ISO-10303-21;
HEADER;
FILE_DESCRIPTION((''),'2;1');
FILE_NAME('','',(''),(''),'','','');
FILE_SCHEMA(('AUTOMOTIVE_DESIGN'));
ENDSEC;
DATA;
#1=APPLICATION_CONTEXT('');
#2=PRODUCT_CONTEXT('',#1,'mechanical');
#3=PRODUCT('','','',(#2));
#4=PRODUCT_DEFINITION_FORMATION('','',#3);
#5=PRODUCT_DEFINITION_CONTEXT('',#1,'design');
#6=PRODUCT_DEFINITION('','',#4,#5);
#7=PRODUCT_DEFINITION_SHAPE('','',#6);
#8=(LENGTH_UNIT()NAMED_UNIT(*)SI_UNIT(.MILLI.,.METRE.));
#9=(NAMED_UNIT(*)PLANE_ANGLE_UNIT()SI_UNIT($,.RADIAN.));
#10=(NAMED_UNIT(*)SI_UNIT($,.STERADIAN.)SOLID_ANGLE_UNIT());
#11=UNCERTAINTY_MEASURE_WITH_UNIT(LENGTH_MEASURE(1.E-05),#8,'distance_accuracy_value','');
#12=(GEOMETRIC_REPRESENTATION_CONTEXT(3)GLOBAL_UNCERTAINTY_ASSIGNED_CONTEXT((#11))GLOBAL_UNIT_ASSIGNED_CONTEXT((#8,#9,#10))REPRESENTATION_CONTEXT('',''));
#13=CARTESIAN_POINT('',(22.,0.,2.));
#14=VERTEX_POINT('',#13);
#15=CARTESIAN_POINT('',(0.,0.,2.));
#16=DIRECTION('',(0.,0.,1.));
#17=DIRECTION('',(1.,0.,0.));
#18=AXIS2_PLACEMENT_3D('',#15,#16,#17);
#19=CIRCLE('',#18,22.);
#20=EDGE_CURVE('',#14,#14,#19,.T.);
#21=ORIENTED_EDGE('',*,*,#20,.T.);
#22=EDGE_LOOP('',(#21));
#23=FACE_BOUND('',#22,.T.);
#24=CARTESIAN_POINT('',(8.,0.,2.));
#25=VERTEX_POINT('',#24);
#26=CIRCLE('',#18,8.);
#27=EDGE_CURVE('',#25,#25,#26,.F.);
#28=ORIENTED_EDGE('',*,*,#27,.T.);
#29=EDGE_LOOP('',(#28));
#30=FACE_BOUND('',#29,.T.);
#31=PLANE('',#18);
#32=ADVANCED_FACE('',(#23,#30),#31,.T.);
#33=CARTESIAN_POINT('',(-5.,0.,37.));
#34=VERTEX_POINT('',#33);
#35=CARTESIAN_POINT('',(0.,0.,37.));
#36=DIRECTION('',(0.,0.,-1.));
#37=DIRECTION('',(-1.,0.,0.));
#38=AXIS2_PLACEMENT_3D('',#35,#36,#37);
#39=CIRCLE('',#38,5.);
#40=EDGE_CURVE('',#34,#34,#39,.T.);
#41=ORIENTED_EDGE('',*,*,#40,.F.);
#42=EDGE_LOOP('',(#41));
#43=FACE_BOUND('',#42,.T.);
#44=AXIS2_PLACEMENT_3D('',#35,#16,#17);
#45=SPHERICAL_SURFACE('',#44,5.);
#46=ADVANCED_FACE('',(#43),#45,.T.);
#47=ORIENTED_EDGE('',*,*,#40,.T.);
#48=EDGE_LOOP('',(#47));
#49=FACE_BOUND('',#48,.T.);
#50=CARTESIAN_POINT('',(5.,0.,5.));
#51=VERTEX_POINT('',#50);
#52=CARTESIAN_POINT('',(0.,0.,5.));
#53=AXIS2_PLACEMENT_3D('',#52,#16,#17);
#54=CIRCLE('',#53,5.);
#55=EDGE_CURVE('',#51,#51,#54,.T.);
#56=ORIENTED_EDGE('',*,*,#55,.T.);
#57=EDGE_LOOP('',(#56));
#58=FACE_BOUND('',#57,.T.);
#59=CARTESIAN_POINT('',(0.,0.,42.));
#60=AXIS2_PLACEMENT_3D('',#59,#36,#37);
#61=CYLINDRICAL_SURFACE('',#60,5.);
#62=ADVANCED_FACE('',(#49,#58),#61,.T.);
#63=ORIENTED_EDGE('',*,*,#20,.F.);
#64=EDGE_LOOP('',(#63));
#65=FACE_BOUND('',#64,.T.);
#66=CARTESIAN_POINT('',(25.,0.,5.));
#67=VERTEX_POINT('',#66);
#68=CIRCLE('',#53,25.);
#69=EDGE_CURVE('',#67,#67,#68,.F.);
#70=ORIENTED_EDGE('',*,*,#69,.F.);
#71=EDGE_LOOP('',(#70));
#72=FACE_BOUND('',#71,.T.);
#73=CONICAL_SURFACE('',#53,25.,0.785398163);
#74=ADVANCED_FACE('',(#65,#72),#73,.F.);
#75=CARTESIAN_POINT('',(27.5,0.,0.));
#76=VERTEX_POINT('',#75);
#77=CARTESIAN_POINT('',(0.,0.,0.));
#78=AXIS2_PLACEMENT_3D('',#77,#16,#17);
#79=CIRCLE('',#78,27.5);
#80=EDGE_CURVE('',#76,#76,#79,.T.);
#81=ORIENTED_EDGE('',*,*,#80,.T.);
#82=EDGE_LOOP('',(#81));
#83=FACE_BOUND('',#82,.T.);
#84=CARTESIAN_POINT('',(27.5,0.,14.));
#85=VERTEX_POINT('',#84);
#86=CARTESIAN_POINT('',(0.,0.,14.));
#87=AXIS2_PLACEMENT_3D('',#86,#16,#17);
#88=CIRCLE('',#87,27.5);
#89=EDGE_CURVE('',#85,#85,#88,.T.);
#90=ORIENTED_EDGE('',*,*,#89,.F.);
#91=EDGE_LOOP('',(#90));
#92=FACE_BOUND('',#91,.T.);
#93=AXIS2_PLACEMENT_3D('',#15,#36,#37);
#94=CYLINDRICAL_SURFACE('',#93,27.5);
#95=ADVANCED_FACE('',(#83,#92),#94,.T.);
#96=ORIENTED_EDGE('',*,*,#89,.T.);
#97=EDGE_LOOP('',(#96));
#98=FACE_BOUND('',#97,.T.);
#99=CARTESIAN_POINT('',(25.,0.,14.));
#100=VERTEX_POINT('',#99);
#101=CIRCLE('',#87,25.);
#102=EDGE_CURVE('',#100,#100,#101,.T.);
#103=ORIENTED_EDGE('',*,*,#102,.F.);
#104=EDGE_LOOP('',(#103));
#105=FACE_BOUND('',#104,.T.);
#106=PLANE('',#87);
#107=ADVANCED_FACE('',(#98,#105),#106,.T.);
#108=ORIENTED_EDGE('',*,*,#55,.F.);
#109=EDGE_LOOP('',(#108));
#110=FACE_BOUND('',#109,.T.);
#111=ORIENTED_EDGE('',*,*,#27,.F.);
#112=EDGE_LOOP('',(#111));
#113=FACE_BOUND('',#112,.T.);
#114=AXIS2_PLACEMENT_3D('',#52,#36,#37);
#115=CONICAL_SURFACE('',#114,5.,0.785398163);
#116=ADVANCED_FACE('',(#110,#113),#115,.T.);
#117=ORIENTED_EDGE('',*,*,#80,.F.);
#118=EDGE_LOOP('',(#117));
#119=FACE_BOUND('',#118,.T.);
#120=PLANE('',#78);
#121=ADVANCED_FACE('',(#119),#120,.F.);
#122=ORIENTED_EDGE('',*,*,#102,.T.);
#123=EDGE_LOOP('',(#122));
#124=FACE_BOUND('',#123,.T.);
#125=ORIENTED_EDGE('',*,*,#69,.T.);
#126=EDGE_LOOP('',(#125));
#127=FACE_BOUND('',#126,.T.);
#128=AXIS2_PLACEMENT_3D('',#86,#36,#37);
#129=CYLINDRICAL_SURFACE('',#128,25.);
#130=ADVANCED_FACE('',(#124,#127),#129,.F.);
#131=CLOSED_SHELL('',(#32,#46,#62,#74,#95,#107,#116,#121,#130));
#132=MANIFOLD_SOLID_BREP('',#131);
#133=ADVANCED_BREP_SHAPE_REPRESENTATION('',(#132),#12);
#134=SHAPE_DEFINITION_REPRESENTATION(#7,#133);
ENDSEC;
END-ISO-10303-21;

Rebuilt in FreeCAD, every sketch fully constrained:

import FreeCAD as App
import Part
import Sketcher

V = App.Vector


def edges_at(feature, points):
    """Names of the edges that pass closest to the given points."""
    edges = feature.Shape.Edges
    near = lambda p: min(range(len(edges)), key=lambda i: edges[i].distToShape(Part.Vertex(*p))[0])
    return sorted({f"Edge{near(p) + 1}" for p in points})

doc = App.newDocument("Part")
body = doc.addObject("PartDesign::Body", "Body")

sketch1 = doc.addObject("Sketcher::SketchObject", "Sketch")
body.addObject(sketch1)
sketch1.AttachmentSupport = (doc.XY_Plane, [""])
sketch1.MapMode = "FlatFace"
sketch1.addGeometry(Part.Circle(V(0, 0, 0), V(0, 0, 1), 27.5), False)
sketch1.addConstraint([
    Sketcher.Constraint("Coincident", 0, 3, -1, 1),
    Sketcher.Constraint("Diameter", 0, 55.0),
])
pad1 = doc.addObject("PartDesign::Pad", "Pad")
body.addObject(pad1)
pad1.Profile = sketch1
pad1.Length = 2

sketch2 = doc.addObject("Sketcher::SketchObject", "Sketch001")
body.addObject(sketch2)
sketch2.AttachmentSupport = (doc.XY_Plane, [""])
sketch2.MapMode = "FlatFace"
sketch2.AttachmentOffset = App.Placement(V(0, 0, 2), App.Rotation())
sketch2.addGeometry([
    Part.Circle(V(0, 0, 0), V(0, 0, 1), 27.5),
    Part.Circle(V(0, 0, 0), V(0, 0, 1), 25),
], False)
sketch2.addConstraint([
    Sketcher.Constraint("Coincident", 0, 3, -1, 1),
    Sketcher.Constraint("Coincident", 1, 3, -1, 1),
    Sketcher.Constraint("Diameter", 0, 55.0),
    Sketcher.Constraint("Diameter", 1, 50.0),
])
pad2 = doc.addObject("PartDesign::Pad", "Pad001")
body.addObject(pad2)
pad2.Profile = sketch2
pad2.Length = 12

sketch3 = doc.addObject("Sketcher::SketchObject", "Sketch002")
body.addObject(sketch3)
sketch3.AttachmentSupport = (doc.XY_Plane, [""])
sketch3.MapMode = "FlatFace"
sketch3.AttachmentOffset = App.Placement(V(0, 0, 2), App.Rotation())
sketch3.addGeometry(Part.Circle(V(0, 0, 0), V(0, 0, 1), 5), False)
sketch3.addConstraint([
    Sketcher.Constraint("Coincident", 0, 3, -1, 1),
    Sketcher.Constraint("Diameter", 0, 10.0),
])
pad3 = doc.addObject("PartDesign::Pad", "Pad002")
body.addObject(pad3)
pad3.Profile = sketch3
pad3.Length = 40
doc.recompute()

chamfer = doc.addObject("PartDesign::Chamfer", "Chamfer")
body.addObject(chamfer)
chamfer.Base = (pad3, edges_at(pad3, [(-25, 0, 2)]))
chamfer.Size = 3
doc.recompute()

chamfer2 = doc.addObject("PartDesign::Chamfer", "Chamfer001")
body.addObject(chamfer2)
chamfer2.Base = (chamfer, edges_at(chamfer, [(-5, 0, 2)]))
chamfer2.Size = 3
doc.recompute()

fillet = doc.addObject("PartDesign::Fillet", "Fillet")
body.addObject(fillet)
fillet.Base = (chamfer2, edges_at(chamfer2, [(-5, 0, 42)]))
fillet.Radius = 5

doc.recompute()
